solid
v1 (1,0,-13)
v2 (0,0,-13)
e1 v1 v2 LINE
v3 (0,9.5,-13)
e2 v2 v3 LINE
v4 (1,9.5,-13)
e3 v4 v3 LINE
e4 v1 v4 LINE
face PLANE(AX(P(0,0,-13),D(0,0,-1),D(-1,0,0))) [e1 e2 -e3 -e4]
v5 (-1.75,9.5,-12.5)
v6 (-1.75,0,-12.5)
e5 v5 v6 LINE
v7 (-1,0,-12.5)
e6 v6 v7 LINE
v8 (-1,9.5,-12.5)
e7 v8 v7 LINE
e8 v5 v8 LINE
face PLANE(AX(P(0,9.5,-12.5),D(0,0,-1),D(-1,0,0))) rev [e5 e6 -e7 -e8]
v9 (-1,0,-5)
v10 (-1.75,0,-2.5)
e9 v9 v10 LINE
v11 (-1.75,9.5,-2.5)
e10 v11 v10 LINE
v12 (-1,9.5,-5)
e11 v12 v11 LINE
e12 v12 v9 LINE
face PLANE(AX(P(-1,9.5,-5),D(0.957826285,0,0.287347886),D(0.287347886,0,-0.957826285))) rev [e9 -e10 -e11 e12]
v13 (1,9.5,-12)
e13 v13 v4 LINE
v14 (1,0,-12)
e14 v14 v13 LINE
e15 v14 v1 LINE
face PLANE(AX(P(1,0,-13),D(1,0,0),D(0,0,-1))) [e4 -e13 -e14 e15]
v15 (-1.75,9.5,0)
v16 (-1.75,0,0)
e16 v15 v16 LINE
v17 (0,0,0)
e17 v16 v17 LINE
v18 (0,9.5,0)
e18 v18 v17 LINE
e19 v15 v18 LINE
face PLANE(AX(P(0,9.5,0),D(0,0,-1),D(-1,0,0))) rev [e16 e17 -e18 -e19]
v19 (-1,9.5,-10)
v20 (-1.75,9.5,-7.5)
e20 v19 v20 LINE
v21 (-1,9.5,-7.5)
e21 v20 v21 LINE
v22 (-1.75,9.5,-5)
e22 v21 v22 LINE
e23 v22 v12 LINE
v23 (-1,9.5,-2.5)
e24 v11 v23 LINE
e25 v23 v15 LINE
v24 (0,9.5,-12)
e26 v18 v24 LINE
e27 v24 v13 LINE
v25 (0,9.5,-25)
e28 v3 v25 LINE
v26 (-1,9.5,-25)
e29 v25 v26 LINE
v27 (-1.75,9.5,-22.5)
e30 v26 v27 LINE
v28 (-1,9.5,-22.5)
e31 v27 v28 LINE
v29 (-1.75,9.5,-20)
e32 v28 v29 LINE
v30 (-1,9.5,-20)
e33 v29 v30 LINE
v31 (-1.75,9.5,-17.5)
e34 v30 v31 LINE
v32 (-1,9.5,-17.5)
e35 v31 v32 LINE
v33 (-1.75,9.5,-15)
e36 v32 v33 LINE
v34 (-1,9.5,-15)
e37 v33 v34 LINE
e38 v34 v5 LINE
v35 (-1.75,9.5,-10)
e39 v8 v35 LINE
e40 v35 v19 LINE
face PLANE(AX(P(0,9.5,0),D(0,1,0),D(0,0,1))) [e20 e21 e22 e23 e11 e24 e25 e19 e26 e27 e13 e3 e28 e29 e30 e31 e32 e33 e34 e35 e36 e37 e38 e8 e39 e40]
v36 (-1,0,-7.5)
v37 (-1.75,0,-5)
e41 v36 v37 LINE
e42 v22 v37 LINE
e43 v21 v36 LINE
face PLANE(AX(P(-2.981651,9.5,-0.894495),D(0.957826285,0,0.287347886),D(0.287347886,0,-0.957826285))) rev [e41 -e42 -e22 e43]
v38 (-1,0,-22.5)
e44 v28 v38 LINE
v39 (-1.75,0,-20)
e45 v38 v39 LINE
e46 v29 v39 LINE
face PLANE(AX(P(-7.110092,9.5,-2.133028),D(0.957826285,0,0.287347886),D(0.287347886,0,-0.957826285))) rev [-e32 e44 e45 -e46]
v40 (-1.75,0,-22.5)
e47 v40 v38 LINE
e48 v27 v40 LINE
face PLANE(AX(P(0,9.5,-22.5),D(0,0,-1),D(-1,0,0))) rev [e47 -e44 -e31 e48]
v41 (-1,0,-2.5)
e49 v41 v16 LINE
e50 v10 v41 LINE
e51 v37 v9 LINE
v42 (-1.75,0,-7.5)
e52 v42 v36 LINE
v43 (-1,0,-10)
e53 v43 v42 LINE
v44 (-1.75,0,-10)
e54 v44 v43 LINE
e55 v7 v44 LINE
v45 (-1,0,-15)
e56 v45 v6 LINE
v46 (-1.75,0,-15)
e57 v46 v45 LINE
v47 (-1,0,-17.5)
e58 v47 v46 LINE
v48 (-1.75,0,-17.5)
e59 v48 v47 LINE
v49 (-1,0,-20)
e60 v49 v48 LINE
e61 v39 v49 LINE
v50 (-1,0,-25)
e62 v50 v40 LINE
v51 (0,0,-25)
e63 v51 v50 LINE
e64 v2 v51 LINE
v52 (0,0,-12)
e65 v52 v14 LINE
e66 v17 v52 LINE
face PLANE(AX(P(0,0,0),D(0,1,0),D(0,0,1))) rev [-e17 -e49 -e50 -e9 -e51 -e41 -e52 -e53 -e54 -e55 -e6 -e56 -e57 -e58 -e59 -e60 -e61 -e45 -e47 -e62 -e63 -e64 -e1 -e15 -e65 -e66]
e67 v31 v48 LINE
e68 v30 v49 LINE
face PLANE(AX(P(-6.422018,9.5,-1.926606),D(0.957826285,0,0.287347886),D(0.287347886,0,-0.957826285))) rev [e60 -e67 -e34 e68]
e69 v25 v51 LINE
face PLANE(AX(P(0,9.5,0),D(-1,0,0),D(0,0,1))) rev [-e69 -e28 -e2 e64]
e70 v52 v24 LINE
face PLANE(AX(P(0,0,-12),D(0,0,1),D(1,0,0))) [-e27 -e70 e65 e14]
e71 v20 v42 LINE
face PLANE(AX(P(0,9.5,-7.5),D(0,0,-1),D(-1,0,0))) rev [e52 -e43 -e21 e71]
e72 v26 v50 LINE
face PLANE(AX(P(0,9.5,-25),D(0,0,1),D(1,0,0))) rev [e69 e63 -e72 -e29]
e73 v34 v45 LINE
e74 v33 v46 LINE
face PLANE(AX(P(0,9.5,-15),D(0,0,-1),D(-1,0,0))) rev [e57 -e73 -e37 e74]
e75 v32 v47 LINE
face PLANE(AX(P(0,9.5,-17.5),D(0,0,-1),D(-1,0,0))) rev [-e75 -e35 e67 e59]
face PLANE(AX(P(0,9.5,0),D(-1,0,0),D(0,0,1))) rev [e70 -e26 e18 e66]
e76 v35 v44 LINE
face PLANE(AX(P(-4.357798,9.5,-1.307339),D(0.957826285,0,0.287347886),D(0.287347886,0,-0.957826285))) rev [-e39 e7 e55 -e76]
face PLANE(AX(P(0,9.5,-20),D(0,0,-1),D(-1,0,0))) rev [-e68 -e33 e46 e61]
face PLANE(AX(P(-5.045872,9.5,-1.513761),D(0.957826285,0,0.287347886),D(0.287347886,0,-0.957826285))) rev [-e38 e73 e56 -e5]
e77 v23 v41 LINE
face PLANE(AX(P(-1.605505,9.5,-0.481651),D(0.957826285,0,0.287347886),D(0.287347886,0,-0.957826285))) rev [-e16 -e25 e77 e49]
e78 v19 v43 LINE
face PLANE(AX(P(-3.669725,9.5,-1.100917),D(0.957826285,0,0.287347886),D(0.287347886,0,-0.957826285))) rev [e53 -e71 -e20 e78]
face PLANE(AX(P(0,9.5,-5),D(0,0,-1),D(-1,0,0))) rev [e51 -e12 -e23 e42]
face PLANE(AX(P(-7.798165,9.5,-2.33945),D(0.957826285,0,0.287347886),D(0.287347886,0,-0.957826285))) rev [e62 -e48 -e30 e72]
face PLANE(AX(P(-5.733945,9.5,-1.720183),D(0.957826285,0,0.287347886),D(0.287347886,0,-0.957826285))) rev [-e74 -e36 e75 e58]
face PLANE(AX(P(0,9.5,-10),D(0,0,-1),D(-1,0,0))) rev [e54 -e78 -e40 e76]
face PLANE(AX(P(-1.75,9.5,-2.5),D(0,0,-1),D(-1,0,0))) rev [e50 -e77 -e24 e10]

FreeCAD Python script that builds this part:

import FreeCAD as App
import Part
import Sketcher


def add_polygon(sketch, points):
    """Adds a closed chain of lines whose ends are joined by coincident constraints."""
    first, n = sketch.GeometryCount, len(points)
    for a, b in zip(points, points[1:] + points[:1]):
        sketch.addGeometry(Part.LineSegment(App.Vector(*a, 0), App.Vector(*b, 0)), False)
    for i in range(n):
        sketch.addConstraint(Sketcher.Constraint("Coincident", first + i, 2, first + (i + 1) % n, 1))

doc = App.newDocument("Part")
body = doc.addObject("PartDesign::Body", "Body")

# Sketch on XZ plane
sketch1 = body.newObject("Sketcher::SketchObject", "Sketch")
sketch1.AttachmentSupport = (doc.getObject("XZ_Plane"), [""])
sketch1.MapMode = "FlatFace"
add_polygon(sketch1, [(-1, -2.5), (-1.8, 0), (0, 0), (0, -25), (-1, -25), (-1.8, -22.5), (-1, -22.5), (-1.8, -20), (-1, -20), (-1.8, -17.5), (-1, -17.5), (-1.8, -15), (-1, -15), (-1.8, -12.5), (-1, -12.5), (-1.8, -10), (-1, -10), (-1.8, -7.5), (-1, -7.5), (-1.8, -5), (-1, -5), (-1.8, -2.5)])  # lines 0-21
sketch1.addConstraint(Sketcher.Constraint("Horizontal", 1))
sketch1.addConstraint(Sketcher.Constraint("Vertical", 2))
sketch1.addConstraint(Sketcher.Constraint("Horizontal", 3))
sketch1.addConstraint(Sketcher.Constraint("Horizontal", 5))
sketch1.addConstraint(Sketcher.Constraint("Horizontal", 7))
sketch1.addConstraint(Sketcher.Constraint("Horizontal", 9))
sketch1.addConstraint(Sketcher.Constraint("Horizontal", 11))
sketch1.addConstraint(Sketcher.Constraint("Horizontal", 13))
sketch1.addConstraint(Sketcher.Constraint("Horizontal", 15))
sketch1.addConstraint(Sketcher.Constraint("Horizontal", 17))
sketch1.addConstraint(Sketcher.Constraint("Horizontal", 19))
sketch1.addConstraint(Sketcher.Constraint("Horizontal", 21))
sketch1.addConstraint(Sketcher.Constraint("Coincident", 1, 2, -1, 1))
sketch1.addConstraint(Sketcher.Constraint("Parallel", 0, 4))
sketch1.addConstraint(Sketcher.Constraint("Parallel", 4, 6))
sketch1.addConstraint(Sketcher.Constraint("Parallel", 6, 8))
sketch1.addConstraint(Sketcher.Constraint("Parallel", 8, 10))
sketch1.addConstraint(Sketcher.Constraint("Parallel", 10, 12))
sketch1.addConstraint(Sketcher.Constraint("Parallel", 12, 14))
sketch1.addConstraint(Sketcher.Constraint("Parallel", 14, 16))
sketch1.addConstraint(Sketcher.Constraint("Parallel", 16, 18))
sketch1.addConstraint(Sketcher.Constraint("Parallel", 18, 20))
sketch1.addConstraint(Sketcher.Constraint("Vertical", 0, 2, 4, 2))
sketch1.addConstraint(Sketcher.Constraint("Vertical", 3, 2, 5, 2))
sketch1.addConstraint(Sketcher.Constraint("Vertical", 4, 2, 6, 2))
sketch1.addConstraint(Sketcher.Constraint("Vertical", 5, 2, 7, 2))
sketch1.addConstraint(Sketcher.Constraint("Vertical", 6, 2, 8, 2))
sketch1.addConstraint(Sketcher.Constraint("Vertical", 7, 2, 9, 2))
sketch1.addConstraint(Sketcher.Constraint("Vertical", 8, 2, 10, 2))
sketch1.addConstraint(Sketcher.Constraint("Vertical", 9, 2, 11, 2))
sketch1.addConstraint(Sketcher.Constraint("Vertical", 10, 2, 12, 2))
sketch1.addConstraint(Sketcher.Constraint("Vertical", 11, 2, 13, 2))
sketch1.addConstraint(Sketcher.Constraint("Vertical", 12, 2, 14, 2))
sketch1.addConstraint(Sketcher.Constraint("Vertical", 13, 2, 15, 2))
sketch1.addConstraint(Sketcher.Constraint("Vertical", 14, 2, 16, 2))
sketch1.addConstraint(Sketcher.Constraint("Vertical", 15, 2, 17, 2))
sketch1.addConstraint(Sketcher.Constraint("Vertical", 16, 2, 18, 2))
sketch1.addConstraint(Sketcher.Constraint("Vertical", 17, 2, 19, 2))
sketch1.addConstraint(Sketcher.Constraint("Vertical", 18, 2, 20, 2))
sketch1.addConstraint(Sketcher.Constraint("Vertical", 19, 2, 21, 2))
sketch1.addConstraint(Sketcher.Constraint("DistanceX", 3, 2, 3, 1, 1.0))
sketch1.addConstraint(Sketcher.Constraint("DistanceY", 2, 2, 2, 1, 25.0))
sketch1.addConstraint(Sketcher.Constraint("DistanceX", 1, 1, 1, 2, 1.75))
pad1 = body.newObject("PartDesign::Pad", "Pad")
pad1.Profile = sketch1
pad1.Length = 9.5
pad1.Reversed = True

# Sketch on XZ plane
sketch2 = body.newObject("Sketcher::SketchObject", "Sketch001")
sketch2.AttachmentSupport = (doc.getObject("XZ_Plane"), [""])
sketch2.MapMode = "FlatFace"
sketch2.AttachmentOffset = App.Placement(App.Vector(0, 0, -9.5), App.Rotation())
add_polygon(sketch2, [(0, -13), (0, -12), (1, -12), (1, -13)])  # lines 0-3
sketch2.addConstraint(Sketcher.Constraint("Vertical", 0))
sketch2.addConstraint(Sketcher.Constraint("Horizontal", 1))
sketch2.addConstraint(Sketcher.Constraint("Vertical", 2))
sketch2.addConstraint(Sketcher.Constraint("Horizontal", 3))
sketch2.addConstraint(Sketcher.Constraint("PointOnObject", 0, 2, -2))
sketch2.addConstraint(Sketcher.Constraint("Equal", 3, 0))
sketch2.addConstraint(Sketcher.Constraint("DistanceX", 1, 1, 1, 2, 1.0))
sketch2.addConstraint(Sketcher.Constraint("DistanceY", 0, 2, -1, 1, 12.0))
pad2 = body.newObject("PartDesign::Pad", "Pad001")
pad2.Profile = sketch2
pad2.Length = 9.5

doc.recompute()
